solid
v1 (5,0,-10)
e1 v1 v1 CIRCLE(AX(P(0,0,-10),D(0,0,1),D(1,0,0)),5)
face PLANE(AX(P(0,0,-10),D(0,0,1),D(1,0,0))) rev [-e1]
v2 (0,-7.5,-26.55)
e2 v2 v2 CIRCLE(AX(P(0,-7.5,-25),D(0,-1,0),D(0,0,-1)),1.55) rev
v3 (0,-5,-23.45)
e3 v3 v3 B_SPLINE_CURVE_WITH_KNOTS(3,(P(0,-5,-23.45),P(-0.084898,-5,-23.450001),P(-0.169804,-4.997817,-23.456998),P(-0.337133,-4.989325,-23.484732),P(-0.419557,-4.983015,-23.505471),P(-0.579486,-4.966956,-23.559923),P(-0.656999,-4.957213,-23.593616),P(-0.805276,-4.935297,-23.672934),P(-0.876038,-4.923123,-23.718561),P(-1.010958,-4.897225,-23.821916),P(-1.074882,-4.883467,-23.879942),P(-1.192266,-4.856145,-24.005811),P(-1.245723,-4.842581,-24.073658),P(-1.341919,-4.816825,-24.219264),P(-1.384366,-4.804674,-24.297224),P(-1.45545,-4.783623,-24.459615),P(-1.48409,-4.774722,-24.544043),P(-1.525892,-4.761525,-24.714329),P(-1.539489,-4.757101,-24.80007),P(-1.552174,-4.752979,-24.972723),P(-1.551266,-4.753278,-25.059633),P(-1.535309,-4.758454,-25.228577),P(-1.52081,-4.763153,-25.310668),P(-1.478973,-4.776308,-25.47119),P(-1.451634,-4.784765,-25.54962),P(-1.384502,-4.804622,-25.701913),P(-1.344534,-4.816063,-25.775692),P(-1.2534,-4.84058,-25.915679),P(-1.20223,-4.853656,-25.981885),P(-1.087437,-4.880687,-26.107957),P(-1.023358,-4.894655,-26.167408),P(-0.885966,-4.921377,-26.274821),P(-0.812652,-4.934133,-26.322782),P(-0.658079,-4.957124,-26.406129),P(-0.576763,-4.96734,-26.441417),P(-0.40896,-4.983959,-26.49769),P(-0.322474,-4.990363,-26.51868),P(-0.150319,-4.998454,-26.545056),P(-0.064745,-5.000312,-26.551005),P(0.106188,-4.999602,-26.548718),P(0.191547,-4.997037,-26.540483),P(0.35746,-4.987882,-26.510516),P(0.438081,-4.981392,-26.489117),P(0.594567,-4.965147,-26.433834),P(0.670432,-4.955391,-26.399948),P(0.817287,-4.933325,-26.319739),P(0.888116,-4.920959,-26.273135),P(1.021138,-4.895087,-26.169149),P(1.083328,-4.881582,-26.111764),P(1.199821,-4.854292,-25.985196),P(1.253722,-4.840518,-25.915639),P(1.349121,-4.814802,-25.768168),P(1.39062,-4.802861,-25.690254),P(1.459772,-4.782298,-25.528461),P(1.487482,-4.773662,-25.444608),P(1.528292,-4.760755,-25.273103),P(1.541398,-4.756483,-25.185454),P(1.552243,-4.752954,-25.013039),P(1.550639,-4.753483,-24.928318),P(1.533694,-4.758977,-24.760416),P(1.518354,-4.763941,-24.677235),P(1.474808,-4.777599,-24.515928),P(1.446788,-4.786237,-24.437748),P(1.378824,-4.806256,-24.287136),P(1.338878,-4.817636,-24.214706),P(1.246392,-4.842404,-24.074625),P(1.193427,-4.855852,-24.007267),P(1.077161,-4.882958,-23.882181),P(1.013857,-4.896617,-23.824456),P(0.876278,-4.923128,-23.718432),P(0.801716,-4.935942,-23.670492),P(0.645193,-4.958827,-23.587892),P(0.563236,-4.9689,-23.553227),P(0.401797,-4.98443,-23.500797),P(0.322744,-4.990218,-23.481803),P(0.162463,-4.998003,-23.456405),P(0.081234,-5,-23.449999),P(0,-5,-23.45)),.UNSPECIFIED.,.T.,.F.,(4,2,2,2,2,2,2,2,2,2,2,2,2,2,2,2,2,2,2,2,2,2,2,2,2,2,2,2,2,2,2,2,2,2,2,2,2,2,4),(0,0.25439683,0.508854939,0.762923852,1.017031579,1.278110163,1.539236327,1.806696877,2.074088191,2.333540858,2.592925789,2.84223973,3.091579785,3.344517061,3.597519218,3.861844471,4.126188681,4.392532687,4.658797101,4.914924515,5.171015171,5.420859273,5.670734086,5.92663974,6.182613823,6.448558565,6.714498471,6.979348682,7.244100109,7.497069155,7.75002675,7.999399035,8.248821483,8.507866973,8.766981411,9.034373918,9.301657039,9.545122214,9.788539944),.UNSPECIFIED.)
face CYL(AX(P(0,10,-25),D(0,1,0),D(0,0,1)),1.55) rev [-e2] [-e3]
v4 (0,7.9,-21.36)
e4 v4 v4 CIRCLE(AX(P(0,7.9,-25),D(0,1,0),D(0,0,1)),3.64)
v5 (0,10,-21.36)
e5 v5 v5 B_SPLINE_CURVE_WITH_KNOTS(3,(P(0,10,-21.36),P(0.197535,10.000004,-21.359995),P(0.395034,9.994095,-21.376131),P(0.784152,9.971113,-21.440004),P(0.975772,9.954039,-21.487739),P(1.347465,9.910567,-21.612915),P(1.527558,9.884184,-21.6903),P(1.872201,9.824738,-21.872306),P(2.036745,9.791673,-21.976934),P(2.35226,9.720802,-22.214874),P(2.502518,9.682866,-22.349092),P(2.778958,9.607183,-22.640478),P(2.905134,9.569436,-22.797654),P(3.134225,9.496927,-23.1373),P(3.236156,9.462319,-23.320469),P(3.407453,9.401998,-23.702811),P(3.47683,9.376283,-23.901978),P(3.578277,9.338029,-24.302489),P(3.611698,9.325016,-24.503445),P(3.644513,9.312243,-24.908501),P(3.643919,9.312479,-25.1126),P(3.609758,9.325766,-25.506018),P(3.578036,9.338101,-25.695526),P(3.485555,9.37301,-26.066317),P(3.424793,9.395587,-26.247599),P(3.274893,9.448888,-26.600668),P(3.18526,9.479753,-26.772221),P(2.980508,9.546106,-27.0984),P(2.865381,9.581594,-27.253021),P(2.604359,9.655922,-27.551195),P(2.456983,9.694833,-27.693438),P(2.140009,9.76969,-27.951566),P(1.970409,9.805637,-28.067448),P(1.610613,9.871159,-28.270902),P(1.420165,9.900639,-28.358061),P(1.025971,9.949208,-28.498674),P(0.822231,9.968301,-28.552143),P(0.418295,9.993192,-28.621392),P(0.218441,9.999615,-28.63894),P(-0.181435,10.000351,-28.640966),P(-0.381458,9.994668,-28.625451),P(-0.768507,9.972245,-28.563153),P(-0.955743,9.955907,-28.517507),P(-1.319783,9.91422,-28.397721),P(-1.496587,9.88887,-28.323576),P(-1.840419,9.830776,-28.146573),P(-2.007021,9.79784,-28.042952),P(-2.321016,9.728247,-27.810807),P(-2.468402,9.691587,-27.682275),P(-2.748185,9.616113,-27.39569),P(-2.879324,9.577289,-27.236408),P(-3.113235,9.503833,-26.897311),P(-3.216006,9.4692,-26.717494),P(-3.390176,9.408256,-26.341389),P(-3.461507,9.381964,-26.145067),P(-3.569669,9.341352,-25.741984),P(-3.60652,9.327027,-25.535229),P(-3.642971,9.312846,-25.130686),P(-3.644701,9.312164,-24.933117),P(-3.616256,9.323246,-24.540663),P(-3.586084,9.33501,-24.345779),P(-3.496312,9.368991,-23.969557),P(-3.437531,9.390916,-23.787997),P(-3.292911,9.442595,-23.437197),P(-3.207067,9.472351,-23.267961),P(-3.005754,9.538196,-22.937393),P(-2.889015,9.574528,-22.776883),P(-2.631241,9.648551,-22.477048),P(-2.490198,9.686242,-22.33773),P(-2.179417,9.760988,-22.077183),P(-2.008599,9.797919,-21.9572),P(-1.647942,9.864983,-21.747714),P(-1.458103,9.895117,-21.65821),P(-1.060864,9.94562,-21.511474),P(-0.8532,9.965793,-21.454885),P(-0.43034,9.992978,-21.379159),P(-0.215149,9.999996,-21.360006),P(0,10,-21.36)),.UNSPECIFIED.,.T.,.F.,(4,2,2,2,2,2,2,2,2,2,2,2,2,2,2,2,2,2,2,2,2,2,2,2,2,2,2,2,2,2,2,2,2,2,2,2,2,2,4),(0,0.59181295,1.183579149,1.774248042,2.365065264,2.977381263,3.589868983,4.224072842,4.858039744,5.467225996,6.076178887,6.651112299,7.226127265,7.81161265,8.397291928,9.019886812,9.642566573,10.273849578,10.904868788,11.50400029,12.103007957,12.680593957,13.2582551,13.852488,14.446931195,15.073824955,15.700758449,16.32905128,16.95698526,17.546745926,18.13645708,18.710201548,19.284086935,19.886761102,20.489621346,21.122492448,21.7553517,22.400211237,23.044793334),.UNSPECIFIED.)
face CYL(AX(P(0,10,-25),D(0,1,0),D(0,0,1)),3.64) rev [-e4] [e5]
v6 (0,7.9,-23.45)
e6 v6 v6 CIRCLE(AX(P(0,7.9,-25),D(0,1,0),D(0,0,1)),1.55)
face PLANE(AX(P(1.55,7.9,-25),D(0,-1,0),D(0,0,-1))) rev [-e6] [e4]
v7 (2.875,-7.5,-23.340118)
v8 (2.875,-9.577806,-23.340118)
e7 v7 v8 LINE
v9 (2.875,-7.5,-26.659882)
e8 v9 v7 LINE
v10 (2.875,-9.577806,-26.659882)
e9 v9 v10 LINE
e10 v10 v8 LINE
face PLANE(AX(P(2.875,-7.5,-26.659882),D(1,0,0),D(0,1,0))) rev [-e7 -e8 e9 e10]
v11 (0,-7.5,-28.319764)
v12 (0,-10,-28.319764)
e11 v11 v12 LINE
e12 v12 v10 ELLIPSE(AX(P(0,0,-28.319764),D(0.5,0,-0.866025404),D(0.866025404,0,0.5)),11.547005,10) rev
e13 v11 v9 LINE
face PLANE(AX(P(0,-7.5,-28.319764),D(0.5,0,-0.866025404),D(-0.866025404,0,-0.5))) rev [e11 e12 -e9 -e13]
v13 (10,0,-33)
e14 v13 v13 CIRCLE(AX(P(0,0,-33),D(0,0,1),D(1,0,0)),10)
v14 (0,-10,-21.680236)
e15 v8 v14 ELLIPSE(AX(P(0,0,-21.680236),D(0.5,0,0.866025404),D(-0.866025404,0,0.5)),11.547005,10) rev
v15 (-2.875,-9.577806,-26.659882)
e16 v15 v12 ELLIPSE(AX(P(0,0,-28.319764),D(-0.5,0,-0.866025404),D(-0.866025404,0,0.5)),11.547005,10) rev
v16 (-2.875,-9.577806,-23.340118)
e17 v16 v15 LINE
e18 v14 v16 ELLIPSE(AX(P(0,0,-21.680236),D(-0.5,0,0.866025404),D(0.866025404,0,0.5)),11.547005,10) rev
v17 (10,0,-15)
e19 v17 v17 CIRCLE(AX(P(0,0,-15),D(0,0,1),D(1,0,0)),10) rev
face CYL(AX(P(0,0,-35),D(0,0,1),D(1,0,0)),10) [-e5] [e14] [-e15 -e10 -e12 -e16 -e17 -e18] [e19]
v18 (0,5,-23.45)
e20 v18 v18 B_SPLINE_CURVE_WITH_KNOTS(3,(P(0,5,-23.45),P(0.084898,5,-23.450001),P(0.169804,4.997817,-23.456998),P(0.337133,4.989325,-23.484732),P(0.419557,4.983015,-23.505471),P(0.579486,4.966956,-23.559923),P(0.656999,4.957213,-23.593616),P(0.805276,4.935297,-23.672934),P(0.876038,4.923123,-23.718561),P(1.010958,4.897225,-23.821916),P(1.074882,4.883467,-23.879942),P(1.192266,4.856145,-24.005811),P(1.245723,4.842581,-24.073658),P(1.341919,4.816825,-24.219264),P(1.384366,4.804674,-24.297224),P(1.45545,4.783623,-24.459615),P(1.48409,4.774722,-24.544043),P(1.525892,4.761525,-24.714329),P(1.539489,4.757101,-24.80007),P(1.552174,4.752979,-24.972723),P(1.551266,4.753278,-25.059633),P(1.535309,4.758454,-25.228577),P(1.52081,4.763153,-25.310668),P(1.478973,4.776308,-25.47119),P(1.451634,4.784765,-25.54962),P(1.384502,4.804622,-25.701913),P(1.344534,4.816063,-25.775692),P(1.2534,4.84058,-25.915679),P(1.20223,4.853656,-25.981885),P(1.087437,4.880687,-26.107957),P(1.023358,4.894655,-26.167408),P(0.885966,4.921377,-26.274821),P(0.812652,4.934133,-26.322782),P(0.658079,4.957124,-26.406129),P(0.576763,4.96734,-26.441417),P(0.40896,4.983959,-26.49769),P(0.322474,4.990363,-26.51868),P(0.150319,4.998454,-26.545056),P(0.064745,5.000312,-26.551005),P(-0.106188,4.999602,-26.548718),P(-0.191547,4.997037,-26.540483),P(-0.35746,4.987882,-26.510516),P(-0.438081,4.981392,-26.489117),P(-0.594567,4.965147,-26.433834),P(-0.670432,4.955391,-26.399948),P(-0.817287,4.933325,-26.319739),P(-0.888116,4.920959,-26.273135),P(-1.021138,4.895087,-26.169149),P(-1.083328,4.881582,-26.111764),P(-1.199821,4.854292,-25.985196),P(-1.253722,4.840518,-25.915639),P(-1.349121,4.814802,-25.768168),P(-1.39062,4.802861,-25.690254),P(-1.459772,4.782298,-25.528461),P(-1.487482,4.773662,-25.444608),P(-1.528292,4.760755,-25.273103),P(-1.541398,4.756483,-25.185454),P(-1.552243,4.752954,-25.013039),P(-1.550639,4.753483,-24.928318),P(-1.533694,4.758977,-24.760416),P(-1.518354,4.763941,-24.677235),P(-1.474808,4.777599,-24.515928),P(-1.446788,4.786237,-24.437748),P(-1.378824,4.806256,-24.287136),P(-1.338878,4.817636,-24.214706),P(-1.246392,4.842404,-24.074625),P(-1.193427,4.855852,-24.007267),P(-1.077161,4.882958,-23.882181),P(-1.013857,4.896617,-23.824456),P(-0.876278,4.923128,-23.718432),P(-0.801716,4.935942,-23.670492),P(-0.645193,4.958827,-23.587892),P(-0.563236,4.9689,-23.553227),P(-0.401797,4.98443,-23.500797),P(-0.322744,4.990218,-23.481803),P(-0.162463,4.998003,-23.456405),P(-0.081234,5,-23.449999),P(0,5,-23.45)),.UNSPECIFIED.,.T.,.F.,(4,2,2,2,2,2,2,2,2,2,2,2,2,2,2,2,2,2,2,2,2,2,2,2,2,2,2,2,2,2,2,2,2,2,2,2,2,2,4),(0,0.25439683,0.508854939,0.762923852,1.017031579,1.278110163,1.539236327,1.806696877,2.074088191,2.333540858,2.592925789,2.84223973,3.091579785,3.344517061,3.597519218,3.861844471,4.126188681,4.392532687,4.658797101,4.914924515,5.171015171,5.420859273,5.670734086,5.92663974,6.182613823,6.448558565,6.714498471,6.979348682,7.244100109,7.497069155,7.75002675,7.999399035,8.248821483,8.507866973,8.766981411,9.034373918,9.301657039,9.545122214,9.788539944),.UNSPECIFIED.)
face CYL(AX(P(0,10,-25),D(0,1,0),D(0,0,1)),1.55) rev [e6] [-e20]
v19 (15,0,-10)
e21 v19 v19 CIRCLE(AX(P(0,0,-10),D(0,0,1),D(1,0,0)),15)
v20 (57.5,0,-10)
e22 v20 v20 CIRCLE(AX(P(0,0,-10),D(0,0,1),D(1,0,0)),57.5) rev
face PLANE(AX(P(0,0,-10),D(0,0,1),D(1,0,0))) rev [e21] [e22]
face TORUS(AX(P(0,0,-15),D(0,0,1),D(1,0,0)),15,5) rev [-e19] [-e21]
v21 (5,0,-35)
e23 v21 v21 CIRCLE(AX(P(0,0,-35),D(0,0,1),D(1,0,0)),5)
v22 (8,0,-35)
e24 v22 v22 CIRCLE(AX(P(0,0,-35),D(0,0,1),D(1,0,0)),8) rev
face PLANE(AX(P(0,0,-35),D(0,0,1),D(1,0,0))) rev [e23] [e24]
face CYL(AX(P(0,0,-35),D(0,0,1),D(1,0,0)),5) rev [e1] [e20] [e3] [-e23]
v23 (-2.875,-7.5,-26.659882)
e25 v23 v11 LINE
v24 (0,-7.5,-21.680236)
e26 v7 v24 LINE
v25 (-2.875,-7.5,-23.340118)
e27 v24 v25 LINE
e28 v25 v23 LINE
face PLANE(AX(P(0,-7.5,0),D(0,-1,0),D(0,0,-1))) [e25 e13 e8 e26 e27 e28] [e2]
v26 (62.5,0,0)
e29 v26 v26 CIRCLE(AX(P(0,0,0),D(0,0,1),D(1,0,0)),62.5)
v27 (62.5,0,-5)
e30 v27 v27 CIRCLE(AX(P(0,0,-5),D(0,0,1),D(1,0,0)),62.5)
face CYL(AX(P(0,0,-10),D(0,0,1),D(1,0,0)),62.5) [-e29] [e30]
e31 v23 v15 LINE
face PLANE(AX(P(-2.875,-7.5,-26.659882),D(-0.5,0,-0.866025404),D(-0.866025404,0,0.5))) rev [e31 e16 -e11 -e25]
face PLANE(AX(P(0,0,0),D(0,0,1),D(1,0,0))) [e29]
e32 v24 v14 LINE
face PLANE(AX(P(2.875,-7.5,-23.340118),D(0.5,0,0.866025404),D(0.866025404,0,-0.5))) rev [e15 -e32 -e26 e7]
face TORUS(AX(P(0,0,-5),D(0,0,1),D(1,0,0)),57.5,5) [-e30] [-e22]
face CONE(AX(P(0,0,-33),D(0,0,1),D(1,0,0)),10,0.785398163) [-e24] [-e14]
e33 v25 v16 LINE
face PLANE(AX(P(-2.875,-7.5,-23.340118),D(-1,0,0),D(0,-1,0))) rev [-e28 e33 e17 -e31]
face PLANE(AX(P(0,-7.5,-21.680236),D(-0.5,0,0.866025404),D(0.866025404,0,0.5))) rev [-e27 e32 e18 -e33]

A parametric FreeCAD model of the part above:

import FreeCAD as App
import Part
import Sketcher
from FreeCAD import Vector
Q = App.Units.Quantity


def edges_at(feature, points):
    """Names of the edges that pass closest to the given points."""
    edges = feature.Shape.Edges
    near = lambda p: min(range(len(edges)), key=lambda i: edges[i].distToShape(Part.Vertex(*p))[0])
    return sorted({f"Edge{near(p) + 1}" for p in points})

doc = App.newDocument("Part")
params = doc.addObject("Spreadsheet::Sheet", "Params")
for row, (alias, value) in enumerate([
    ("sketch1_diameter", "125 mm"),
    ("pad1_length", "10 mm"),
    ("sketch2_diameter", "20 mm"),
    ("sketch2_diameter2", "10 mm"),
    ("pad2_length", "25 mm"),
    ("fillet_radius", "5 mm"),
    ("chamfer_size", "2 mm"),
    ("sketch3_diameter", "3.1 mm"),
    ("hole_diameter", "3.1 mm"),
    ("hole_cbore_diameter", "7.28 mm"),
    ("hole_cbore_depth", "2.1 mm"),
    ("pocket1_length", "2.5 mm"),
], start=1):
    params.set(f"A{row}", alias)
    params.set(f"B{row}", "=" + value)
    params.setAlias(f"B{row}", alias)

body = doc.addObject("PartDesign::Body", "Body")

# Sketch on XY plane
sketch1 = body.newObject("Sketcher::SketchObject", "Sketch")
sketch1.AttachmentSupport = (doc.getObject("XY_Plane"), [""])
sketch1.MapMode = "FlatFace"
sketch1.addGeometry(Part.Circle(Vector(0, 0, 0), Vector(0, 0, 1), 62), False)
sketch1.addConstraint([
    Sketcher.Constraint("Coincident", 0, 3, -1, 1),
    Sketcher.Constraint("Diameter", 0, 125.0),
])
sketch1.setExpression("Constraints[1]", "Params.sketch1_diameter")
pad1 = body.newObject("PartDesign::Pad", "Pad")
pad1.Profile = sketch1
pad1.setExpression("Length", "Params.pad1_length")
pad1.Reversed = True

# Sketch on XY plane
sketch2 = body.newObject("Sketcher::SketchObject", "Sketch001")
sketch2.AttachmentSupport = (doc.getObject("XY_Plane"), [""])
sketch2.MapMode = "FlatFace"
sketch2.AttachmentOffset = App.Placement(Vector(0, 0, -10), App.Rotation())
sketch2.addGeometry([
    Part.Circle(Vector(0, 0, 0), Vector(0, 0, 1), 10),
    Part.Circle(Vector(0, 0, 0), Vector(0, 0, 1), 5),
], False)
sketch2.addConstraint([
    Sketcher.Constraint("Coincident", 0, 3, -1, 1),
    Sketcher.Constraint("Coincident", 1, 3, -1, 1),
    Sketcher.Constraint("Diameter", 0, 20.0),
    Sketcher.Constraint("Diameter", 1, 10.0),
])
sketch2.setExpression("Constraints[2]", "Params.sketch2_diameter")
sketch2.setExpression("Constraints[3]", "Params.sketch2_diameter2")
pad2 = body.newObject("PartDesign::Pad", "Pad001")
pad2.Profile = sketch2
pad2.setExpression("Length", "Params.pad2_length")
pad2.Reversed = True
doc.recompute()

fillet = body.newObject("PartDesign::Fillet", "Fillet")
fillet.Base = (pad2, edges_at(pad2, [(-62.5, 0, -10), (-10, 0, -10)]))
fillet.setExpression("Radius", "Params.fillet_radius")
doc.recompute()

chamfer = body.newObject("PartDesign::Chamfer", "Chamfer")
chamfer.Base = (fillet, edges_at(fillet, [(-10, 0, -35)]))
chamfer.setExpression("Size", "Params.chamfer_size")

# Sketch on XZ plane
sketch3 = body.newObject("Sketcher::SketchObject", "Sketch002")
sketch3.AttachmentSupport = (doc.getObject("XZ_Plane"), [""])
sketch3.MapMode = "FlatFace"
sketch3.AttachmentOffset = App.Placement(Vector(0, 0, -10), App.Rotation())
sketch3.addGeometry(Part.Circle(Vector(0, -25, 0), Vector(0, 0, 1), 1.6), False)
sketch3.addConstraint([
    Sketcher.Constraint("PointOnObject", 0, 3, -2),
    Sketcher.Constraint("Diameter", 0, 3.1),
    Sketcher.Constraint("DistanceY", 0, 3, -1, 1, 25.0),
])
sketch3.setExpression("Constraints[1]", "Params.sketch3_diameter")
doc.recompute()
hole = body.newObject("PartDesign::Hole", "Hole")
hole.Profile = sketch3
hole.ThreadType = "None"
hole.setExpression("Diameter", "Params.hole_diameter")
hole.DepthType = "ThroughAll"
hole.HoleCutType = "Counterbore"
hole.setExpression("HoleCutDiameter", "Params.hole_cbore_diameter")
hole.setExpression("HoleCutDepth", "Params.hole_cbore_depth")
hole.Reversed = True

# Sketch on XZ plane
sketch4 = body.newObject("Sketcher::SketchObject", "Sketch003")
sketch4.AttachmentSupport = (doc.getObject("XZ_Plane"), [""])
sketch4.MapMode = "FlatFace"
sketch4.AttachmentOffset = App.Placement(Vector(0, 0, 10), App.Rotation())
sketch4.addGeometry([
    Part.LineSegment(Vector(-2.9, -23.3, 0), Vector(-2.9, -26.7, 0)),  # 0
    Part.LineSegment(Vector(-2.9, -26.7, 0), Vector(0, -28.3, 0)),  # 1
    Part.LineSegment(Vector(0, -28.3, 0), Vector(2.9, -26.7, 0)),  # 2
    Part.LineSegment(Vector(2.9, -26.7, 0), Vector(2.9, -23.3, 0)),  # 3
    Part.LineSegment(Vector(2.9, -23.3, 0), Vector(0, -21.7, 0)),  # 4
    Part.LineSegment(Vector(0, -21.7, 0), Vector(-2.9, -23.3, 0)),  # 5
], False)
sketch4.addConstraint([
    Sketcher.Constraint("Coincident", 0, 2, 1, 1),
    Sketcher.Constraint("Coincident", 1, 2, 2, 1),
    Sketcher.Constraint("Coincident", 2, 2, 3, 1),
    Sketcher.Constraint("Coincident", 3, 2, 4, 1),
    Sketcher.Constraint("Coincident", 4, 2, 5, 1),
    Sketcher.Constraint("Coincident", 5, 2, 0, 1),
    Sketcher.Constraint("Vertical", 0),
    Sketcher.Constraint("Vertical", 3),
    Sketcher.Constraint("Symmetric", 0, 2, 2, 2, -2),
    Sketcher.Constraint("PointOnObject", 1, 2, -2),
    Sketcher.Constraint("PointOnObject", 4, 2, -2),
    Sketcher.Constraint("Parallel", 1, 4),
    Sketcher.Constraint("Parallel", 2, 5),
    Sketcher.Constraint("Angle", 1, Q("-30 deg")),
    Sketcher.Constraint("DistanceX", 0, 2, 2, 2, 5.75),
    Sketcher.Constraint("DistanceY", 0, 2, 0, 1, 3.319764),
    Sketcher.Constraint("DistanceY", 0, 2, -1, 1, 26.659882),
])
pocket1 = body.newObject("PartDesign::Pocket", "Pocket")
pocket1.Profile = sketch4
pocket1.setExpression("Length", "Params.pocket1_length")

doc.recompute()
